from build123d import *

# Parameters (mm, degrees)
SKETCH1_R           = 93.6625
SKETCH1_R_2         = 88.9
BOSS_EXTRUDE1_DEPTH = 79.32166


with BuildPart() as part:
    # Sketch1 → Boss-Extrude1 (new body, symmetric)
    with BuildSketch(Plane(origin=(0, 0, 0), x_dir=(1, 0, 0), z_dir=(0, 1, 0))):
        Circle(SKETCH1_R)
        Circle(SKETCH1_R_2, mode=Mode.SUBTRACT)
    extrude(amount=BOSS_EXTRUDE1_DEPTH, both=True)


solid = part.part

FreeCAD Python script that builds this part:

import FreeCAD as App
import Part
import Sketcher
Q = App.Units.Quantity

doc = App.newDocument("Part")
body = doc.addObject("PartDesign::Body", "Body")

sketch1 = doc.addObject("Sketcher::SketchObject", "Sketch")
body.addObject(sketch1)
sketch1.AttachmentSupport = (doc.XZ_Plane, [""])
sketch1.MapMode = "FlatFace"
sketch1.addGeometry(Part.Circle(App.Vector(0, 0, 0), App.Vector(0, 0, 1), 94), False)
sketch1.addGeometry(Part.Circle(App.Vector(0, 0, 0), App.Vector(0, 0, 1), 89), False)
sketch1.addConstraint(Sketcher.Constraint("Coincident", 0, 3, -1, 1))
sketch1.addConstraint(Sketcher.Constraint("Coincident", 1, 3, -1, 1))
sketch1.addConstraint(Sketcher.Constraint("Diameter", 1, Q("7 in")))
sketch1.addConstraint(Sketcher.Constraint("Diameter", 0, Q("7.375 in")))
pad1 = doc.addObject("PartDesign::Pad", "Pad")
body.addObject(pad1)
pad1.Profile = sketch1
pad1.Length = Q("6.2458 in")
pad1.Midplane = True

doc.recompute()
